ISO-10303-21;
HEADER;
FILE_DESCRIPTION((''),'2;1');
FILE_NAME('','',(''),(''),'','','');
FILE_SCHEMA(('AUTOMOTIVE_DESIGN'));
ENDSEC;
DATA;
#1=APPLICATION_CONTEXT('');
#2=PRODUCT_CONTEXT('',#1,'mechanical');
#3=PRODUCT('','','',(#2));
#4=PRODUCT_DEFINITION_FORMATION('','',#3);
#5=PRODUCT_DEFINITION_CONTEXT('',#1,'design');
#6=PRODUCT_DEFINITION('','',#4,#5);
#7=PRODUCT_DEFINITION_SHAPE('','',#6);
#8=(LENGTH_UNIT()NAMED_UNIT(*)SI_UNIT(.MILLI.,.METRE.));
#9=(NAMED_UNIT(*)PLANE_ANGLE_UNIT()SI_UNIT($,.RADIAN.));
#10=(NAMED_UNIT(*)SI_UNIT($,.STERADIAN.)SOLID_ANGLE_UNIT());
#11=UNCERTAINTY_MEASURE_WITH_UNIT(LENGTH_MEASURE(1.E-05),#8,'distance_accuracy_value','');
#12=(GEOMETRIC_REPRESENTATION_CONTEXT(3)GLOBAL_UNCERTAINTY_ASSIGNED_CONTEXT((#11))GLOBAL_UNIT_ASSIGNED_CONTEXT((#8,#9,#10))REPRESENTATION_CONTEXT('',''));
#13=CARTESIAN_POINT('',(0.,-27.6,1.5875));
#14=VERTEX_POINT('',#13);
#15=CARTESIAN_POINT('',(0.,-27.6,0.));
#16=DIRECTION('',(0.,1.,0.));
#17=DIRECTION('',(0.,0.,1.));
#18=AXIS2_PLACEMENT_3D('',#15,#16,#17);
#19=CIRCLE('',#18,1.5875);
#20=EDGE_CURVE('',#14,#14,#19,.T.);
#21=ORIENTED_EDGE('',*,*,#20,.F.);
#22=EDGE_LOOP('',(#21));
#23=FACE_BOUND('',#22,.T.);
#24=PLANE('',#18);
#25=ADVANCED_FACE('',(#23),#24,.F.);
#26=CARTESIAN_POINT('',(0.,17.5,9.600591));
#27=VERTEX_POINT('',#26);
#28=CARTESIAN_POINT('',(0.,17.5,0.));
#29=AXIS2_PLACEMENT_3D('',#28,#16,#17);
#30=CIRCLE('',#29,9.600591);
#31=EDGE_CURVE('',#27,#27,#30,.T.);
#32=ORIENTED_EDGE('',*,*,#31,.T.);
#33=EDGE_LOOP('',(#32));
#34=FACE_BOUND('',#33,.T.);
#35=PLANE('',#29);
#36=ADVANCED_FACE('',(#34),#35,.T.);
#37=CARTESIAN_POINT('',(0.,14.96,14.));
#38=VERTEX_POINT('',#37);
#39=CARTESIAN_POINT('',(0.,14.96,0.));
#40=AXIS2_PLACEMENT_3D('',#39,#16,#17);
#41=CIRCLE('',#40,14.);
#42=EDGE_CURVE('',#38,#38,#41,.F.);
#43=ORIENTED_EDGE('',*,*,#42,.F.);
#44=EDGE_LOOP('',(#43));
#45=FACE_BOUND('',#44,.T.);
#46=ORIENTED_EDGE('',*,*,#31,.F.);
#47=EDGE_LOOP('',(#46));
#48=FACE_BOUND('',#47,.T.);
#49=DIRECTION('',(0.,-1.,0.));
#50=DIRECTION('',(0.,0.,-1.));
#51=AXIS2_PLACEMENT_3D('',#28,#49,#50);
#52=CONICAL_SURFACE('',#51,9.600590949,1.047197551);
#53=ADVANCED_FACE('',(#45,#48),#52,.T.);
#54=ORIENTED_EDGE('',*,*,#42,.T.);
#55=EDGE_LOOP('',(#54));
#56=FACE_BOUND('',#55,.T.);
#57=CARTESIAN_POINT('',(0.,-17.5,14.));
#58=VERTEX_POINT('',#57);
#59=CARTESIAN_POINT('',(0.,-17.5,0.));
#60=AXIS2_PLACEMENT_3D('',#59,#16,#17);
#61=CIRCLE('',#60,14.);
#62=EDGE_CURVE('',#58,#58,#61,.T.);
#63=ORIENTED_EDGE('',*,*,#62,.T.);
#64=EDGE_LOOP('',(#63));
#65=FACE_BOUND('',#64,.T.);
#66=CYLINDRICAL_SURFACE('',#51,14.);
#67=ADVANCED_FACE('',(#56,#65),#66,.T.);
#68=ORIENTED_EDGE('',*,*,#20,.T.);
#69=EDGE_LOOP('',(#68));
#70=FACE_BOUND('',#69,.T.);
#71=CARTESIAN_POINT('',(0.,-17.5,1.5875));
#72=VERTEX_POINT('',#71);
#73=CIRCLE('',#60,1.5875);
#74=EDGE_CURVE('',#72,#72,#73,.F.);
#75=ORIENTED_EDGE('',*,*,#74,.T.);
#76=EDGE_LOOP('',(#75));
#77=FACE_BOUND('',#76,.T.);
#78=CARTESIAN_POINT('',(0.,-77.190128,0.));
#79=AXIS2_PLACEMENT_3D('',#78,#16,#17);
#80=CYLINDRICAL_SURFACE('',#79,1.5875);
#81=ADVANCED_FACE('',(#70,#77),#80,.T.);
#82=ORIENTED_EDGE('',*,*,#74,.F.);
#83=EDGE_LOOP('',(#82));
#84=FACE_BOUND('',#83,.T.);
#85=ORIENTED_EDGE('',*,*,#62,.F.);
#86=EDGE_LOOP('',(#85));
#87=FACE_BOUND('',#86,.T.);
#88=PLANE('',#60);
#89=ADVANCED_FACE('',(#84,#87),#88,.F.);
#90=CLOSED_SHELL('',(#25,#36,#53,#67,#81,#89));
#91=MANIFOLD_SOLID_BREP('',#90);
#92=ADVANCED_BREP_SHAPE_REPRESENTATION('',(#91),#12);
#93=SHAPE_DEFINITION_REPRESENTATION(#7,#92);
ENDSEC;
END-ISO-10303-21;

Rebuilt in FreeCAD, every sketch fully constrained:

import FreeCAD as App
import Part
import Sketcher
from FreeCAD import Vector


def edges_at(feature, points):
    """Names of the edges that pass closest to the given points."""
    edges = feature.Shape.Edges
    near = lambda p: min(range(len(edges)), key=lambda i: edges[i].distToShape(Part.Vertex(*p))[0])
    return sorted({f"Edge{near(p) + 1}" for p in points})

doc = App.newDocument("Part")
body = doc.addObject("PartDesign::Body", "Body")

# Sketch on XZ plane
sketch1 = body.newObject("Sketcher::SketchObject", "Sketch")
sketch1.AttachmentSupport = (doc.getObject("XZ_Plane"), [""])
sketch1.MapMode = "FlatFace"
sketch1.addGeometry(Part.Circle(Vector(0, 0, 0), Vector(0, 0, 1), 14), False)
sketch1.addConstraint([
    Sketcher.Constraint("Coincident", 0, 3, -1, 1),
    Sketcher.Constraint("Diameter", 0, 28.0),
])
pad1 = body.newObject("PartDesign::Pad", "Pad")
pad1.Profile = sketch1
pad1.Length = 35
pad1.Midplane = True
doc.recompute()

chamfer = body.newObject("PartDesign::Chamfer", "Chamfer")
chamfer.Base = (pad1, edges_at(pad1, [(-14, 17.5, 0)]))
chamfer.ChamferType = "Two distances"
chamfer.Size = 2.54
chamfer.Size2 = 4.399409

# Sketch on XZ plane
sketch2 = body.newObject("Sketcher::SketchObject", "Sketch001")
sketch2.AttachmentSupport = (doc.getObject("XZ_Plane"), [""])
sketch2.MapMode = "FlatFace"
sketch2.AttachmentOffset = App.Placement(Vector(0, 0, 17.5), App.Rotation())
sketch2.addGeometry(Part.Circle(Vector(0, 0, 0), Vector(0, 0, 1), 1.6), False)
sketch2.addConstraint([
    Sketcher.Constraint("Coincident", 0, 3, -1, 1),
    Sketcher.Constraint("Diameter", 0, 3.175),
])
pad2 = body.newObject("PartDesign::Pad", "Pad001")
pad2.Profile = sketch2
pad2.Length = 10.1

doc.recompute()
